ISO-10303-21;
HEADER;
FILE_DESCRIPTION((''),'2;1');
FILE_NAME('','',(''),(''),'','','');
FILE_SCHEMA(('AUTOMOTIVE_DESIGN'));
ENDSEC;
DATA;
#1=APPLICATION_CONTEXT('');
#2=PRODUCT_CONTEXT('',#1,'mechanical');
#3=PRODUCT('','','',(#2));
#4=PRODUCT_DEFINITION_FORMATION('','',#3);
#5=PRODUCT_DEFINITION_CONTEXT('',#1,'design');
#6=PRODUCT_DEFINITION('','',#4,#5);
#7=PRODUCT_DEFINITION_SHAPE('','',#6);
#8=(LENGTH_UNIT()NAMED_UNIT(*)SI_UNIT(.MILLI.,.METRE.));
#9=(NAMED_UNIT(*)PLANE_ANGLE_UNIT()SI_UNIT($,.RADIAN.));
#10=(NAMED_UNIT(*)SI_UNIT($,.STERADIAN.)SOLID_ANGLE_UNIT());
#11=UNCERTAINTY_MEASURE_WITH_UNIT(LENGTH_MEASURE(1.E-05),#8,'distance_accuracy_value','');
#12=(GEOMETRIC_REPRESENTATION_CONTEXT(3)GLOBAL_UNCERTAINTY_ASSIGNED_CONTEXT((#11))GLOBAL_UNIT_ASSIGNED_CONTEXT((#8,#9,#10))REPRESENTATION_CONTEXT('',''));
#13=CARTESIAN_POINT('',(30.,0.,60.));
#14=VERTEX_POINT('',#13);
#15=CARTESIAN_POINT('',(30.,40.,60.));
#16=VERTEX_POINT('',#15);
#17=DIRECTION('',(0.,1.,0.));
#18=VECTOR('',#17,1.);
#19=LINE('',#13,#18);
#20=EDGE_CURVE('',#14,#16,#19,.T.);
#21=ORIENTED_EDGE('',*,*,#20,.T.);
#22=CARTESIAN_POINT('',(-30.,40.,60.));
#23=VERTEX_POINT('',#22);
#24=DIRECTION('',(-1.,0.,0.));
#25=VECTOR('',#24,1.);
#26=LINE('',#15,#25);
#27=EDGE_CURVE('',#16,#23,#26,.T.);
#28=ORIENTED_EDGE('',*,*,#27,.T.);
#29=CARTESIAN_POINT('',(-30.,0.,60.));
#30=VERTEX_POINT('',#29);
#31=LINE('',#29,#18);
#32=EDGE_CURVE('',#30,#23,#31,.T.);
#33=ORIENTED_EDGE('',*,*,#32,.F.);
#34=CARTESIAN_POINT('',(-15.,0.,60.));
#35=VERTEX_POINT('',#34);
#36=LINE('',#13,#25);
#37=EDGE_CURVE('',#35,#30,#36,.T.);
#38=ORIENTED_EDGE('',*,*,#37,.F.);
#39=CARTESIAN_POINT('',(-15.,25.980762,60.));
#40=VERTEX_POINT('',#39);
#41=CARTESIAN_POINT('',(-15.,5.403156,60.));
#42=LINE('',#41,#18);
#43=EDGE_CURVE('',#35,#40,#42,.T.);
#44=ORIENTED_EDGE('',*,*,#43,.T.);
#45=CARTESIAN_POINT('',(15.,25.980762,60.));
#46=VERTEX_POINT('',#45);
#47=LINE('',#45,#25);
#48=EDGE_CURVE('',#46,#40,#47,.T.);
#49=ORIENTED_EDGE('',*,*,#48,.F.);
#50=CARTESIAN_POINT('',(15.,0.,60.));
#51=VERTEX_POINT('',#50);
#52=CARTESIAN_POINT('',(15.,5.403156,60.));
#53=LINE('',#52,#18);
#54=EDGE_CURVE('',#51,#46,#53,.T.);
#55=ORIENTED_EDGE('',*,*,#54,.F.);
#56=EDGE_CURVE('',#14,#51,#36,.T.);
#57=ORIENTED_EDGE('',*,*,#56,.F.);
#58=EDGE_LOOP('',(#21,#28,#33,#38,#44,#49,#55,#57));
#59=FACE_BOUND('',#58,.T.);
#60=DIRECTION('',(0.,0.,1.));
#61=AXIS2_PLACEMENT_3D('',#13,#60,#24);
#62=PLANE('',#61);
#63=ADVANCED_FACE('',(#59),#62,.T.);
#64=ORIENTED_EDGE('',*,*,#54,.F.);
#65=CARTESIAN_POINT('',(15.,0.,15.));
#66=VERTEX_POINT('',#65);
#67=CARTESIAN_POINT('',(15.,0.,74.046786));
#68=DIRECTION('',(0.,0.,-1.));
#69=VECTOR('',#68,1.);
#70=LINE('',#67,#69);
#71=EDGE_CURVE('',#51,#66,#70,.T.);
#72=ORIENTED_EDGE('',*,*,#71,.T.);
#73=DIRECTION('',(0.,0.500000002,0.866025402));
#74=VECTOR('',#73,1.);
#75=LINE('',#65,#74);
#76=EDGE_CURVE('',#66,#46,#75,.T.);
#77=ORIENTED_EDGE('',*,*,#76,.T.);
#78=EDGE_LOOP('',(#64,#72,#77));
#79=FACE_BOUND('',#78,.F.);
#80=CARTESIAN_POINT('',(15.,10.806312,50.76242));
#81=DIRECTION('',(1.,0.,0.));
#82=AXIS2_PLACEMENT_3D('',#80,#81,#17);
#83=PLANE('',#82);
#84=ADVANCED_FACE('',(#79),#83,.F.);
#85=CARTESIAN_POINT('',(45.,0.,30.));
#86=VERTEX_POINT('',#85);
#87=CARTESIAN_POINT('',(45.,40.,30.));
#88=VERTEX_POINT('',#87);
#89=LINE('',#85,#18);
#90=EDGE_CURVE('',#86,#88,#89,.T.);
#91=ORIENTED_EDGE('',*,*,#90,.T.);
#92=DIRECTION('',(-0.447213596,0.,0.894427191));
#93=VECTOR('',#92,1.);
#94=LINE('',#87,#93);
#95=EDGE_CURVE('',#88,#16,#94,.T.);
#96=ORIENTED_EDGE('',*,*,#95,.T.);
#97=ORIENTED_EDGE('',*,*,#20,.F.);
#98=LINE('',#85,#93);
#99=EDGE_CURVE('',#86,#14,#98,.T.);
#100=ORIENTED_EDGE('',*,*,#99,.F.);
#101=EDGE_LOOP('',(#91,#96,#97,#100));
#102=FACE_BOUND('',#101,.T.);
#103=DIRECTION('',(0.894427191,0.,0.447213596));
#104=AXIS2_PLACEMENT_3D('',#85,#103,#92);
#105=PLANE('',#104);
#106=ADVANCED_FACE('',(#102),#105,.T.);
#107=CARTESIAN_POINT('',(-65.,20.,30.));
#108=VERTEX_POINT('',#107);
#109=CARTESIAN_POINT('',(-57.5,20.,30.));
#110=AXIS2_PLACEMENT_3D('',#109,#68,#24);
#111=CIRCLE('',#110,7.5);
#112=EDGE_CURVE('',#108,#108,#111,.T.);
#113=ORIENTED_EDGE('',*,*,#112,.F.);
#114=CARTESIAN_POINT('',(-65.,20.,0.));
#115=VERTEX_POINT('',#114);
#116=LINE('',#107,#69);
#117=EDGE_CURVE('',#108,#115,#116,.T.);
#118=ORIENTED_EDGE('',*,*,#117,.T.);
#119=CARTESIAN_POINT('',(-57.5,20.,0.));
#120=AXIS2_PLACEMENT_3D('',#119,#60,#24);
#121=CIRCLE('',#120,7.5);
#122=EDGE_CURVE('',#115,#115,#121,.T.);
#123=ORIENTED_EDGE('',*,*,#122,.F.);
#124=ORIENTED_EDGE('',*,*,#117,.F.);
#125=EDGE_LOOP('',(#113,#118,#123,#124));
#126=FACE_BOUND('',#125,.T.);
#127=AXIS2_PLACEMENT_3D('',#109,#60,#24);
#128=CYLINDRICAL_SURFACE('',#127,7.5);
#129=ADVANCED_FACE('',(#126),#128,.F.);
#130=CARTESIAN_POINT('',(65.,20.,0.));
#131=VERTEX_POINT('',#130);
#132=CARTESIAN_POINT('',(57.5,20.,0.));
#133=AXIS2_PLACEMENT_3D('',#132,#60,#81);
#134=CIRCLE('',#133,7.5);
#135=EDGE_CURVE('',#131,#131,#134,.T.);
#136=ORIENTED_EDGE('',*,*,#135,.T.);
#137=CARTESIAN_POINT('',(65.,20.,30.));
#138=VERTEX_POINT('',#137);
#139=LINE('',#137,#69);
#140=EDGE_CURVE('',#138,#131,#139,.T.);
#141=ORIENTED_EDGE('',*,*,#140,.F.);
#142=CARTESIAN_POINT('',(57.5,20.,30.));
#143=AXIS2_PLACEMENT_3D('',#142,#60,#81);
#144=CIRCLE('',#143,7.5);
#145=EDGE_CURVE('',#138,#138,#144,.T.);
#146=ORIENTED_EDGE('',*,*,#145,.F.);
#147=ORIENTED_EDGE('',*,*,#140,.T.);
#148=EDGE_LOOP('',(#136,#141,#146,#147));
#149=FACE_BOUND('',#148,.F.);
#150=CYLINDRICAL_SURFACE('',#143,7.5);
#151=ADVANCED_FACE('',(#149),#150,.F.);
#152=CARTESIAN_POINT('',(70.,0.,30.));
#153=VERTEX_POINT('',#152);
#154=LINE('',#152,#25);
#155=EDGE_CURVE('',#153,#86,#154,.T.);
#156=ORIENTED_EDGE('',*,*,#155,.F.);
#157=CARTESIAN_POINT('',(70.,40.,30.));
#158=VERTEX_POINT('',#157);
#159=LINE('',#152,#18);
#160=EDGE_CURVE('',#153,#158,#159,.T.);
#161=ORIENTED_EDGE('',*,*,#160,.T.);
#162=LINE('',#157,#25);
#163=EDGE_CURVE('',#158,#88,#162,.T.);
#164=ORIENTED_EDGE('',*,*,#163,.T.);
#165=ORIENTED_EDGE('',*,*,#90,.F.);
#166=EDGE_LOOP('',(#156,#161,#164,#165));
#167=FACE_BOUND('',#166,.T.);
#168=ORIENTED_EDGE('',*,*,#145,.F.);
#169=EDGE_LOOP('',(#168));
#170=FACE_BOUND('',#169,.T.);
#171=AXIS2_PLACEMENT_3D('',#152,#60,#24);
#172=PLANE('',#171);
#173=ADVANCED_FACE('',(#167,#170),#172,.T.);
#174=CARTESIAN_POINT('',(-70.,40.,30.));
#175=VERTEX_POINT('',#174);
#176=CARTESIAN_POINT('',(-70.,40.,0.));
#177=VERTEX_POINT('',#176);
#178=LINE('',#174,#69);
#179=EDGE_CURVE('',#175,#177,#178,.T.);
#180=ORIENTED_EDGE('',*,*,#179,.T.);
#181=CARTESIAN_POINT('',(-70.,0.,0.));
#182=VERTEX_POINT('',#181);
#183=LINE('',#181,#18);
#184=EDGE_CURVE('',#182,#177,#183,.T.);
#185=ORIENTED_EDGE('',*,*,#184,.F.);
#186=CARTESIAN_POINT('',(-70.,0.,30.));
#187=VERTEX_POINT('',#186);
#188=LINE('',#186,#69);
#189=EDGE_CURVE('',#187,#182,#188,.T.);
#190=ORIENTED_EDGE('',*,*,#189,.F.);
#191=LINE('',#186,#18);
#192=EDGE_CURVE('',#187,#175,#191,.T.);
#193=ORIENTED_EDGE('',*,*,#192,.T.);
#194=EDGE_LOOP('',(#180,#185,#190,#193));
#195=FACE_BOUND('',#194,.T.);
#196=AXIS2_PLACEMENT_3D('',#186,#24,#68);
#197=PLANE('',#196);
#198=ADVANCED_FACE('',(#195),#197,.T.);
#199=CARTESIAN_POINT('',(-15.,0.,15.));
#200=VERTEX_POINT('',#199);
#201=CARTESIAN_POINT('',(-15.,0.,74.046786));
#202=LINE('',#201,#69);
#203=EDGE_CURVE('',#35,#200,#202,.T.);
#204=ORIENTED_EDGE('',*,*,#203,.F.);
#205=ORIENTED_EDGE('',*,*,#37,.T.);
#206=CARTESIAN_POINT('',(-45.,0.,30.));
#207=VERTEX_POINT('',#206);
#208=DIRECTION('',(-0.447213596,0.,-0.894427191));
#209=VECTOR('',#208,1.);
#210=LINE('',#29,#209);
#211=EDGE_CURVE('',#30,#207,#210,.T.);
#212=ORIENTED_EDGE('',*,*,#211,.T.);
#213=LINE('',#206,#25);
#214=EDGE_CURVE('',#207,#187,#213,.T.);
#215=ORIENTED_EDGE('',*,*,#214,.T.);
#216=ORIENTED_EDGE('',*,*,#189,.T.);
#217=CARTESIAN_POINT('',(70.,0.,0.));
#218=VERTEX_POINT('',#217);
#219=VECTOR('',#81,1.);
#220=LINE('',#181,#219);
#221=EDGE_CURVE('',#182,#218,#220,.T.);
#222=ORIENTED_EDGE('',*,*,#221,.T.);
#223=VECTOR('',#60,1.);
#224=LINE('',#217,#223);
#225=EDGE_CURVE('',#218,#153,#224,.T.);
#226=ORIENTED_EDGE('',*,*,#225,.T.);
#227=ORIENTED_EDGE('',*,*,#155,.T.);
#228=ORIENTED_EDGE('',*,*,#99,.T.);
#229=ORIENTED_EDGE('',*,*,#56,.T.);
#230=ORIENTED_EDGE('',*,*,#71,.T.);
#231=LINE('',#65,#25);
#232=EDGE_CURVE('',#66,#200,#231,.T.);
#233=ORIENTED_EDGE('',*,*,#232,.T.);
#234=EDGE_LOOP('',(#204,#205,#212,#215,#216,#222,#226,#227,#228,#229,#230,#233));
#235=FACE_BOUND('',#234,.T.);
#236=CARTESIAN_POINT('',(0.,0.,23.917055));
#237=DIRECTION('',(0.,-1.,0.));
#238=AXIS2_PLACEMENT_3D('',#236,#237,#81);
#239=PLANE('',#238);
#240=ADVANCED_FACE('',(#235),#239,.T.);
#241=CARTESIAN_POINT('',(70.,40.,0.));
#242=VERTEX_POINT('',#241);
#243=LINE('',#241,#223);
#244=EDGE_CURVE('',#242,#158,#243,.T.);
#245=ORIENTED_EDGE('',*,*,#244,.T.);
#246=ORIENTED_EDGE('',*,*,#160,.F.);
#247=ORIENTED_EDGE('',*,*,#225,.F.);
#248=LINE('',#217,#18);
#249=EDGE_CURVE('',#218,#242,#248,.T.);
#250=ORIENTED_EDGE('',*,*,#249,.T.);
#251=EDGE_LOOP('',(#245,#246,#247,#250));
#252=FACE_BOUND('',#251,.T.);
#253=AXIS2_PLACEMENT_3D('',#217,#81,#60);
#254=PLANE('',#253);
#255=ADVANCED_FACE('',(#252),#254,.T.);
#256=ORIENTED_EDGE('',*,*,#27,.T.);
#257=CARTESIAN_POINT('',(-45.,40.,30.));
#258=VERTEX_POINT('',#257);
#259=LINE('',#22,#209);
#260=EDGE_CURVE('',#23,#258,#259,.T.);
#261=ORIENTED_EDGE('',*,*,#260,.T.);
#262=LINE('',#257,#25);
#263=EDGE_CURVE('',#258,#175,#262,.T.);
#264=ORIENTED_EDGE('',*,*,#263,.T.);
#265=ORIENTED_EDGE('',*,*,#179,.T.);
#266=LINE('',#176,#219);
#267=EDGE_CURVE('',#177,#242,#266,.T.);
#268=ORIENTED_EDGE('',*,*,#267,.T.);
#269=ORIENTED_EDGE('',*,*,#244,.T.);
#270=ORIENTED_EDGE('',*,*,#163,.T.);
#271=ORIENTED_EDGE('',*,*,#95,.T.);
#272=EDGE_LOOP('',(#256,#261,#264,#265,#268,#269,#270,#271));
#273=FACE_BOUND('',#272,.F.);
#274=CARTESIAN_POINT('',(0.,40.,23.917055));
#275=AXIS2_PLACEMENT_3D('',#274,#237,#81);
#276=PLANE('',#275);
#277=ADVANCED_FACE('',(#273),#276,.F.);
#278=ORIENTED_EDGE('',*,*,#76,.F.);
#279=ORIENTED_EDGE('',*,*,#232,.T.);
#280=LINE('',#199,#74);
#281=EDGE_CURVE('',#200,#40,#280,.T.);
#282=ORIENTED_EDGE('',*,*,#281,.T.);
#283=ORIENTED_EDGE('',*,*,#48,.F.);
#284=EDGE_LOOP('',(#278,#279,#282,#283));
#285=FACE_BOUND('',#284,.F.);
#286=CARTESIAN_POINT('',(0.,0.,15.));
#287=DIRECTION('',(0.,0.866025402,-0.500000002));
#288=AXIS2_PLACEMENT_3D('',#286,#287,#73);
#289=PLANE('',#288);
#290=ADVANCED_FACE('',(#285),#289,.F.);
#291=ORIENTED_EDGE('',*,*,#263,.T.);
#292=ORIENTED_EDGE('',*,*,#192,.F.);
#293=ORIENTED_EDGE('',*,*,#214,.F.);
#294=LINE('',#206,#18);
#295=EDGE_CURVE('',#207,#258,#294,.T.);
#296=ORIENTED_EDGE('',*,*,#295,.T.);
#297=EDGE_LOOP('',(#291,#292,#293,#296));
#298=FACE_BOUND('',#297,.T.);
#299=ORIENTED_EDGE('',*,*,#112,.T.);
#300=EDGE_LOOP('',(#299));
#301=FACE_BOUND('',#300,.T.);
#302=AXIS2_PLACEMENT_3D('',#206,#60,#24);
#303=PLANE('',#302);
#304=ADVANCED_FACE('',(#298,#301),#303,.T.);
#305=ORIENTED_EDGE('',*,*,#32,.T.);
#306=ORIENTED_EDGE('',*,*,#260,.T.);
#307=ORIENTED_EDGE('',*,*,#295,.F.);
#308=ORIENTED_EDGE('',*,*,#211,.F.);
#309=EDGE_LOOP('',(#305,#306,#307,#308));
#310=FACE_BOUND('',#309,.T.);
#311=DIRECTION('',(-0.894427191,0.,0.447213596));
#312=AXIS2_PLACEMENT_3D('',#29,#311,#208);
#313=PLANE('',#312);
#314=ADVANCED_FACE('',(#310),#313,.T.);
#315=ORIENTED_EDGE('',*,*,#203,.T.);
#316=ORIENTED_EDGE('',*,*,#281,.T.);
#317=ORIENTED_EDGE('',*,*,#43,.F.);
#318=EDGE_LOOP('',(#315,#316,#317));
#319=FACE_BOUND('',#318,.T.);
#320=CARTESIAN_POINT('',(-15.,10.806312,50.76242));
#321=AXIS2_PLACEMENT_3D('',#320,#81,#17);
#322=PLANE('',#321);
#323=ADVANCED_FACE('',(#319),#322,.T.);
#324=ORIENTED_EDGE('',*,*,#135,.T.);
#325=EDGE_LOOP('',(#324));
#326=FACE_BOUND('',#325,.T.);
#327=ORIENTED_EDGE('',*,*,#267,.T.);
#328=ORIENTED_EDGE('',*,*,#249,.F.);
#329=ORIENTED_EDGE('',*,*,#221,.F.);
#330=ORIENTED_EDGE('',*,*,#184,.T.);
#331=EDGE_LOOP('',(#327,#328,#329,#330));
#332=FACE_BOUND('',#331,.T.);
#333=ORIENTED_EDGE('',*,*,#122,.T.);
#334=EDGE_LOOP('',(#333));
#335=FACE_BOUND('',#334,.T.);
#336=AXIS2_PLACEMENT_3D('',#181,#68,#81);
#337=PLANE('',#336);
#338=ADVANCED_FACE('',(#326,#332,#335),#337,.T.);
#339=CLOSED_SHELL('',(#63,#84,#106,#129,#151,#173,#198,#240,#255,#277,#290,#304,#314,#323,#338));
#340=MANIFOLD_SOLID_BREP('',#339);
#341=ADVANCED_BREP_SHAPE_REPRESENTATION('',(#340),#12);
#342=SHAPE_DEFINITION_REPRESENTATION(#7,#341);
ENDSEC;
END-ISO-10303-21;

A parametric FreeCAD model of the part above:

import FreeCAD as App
import Part
import Sketcher

V = App.Vector
Q = App.Units.Quantity


def add_polygon(sketch, points):
    """Adds a closed chain of lines whose ends are joined by coincident constraints."""
    first, n = sketch.GeometryCount, len(points)
    for a, b in zip(points, points[1:] + points[:1]):
        sketch.addGeometry(Part.LineSegment(App.Vector(*a, 0), App.Vector(*b, 0)), False)
    for i in range(n):
        sketch.addConstraint(Sketcher.Constraint("Coincident", first + i, 2, first + (i + 1) % n, 1))

doc = App.newDocument("Part")
body = doc.addObject("PartDesign::Body", "Body")

# Sketch on YZ plane
sketch1 = body.newObject("Sketcher::SketchObject", "Sketch")
sketch1.AttachmentSupport = (doc.getObject("YZ_Plane"), [""])
sketch1.MapMode = "FlatFace"
add_polygon(sketch1, [(0, 15), (34, 74), (0, 74)])  # lines 0-2
sketch1.addConstraint(Sketcher.Constraint("Horizontal", 1))
sketch1.addConstraint(Sketcher.Constraint("Vertical", 2))
sketch1.addConstraint(Sketcher.Constraint("PointOnObject", 1, 2, -2))
sketch1.addConstraint(Sketcher.Constraint("Angle", 0, Q("60 deg")))
sketch1.addConstraint(Sketcher.Constraint("DistanceY", -1, 1, 2, 2, 15.0))
sketch1.addConstraint(Sketcher.Constraint("DistanceX", 1, 2, 1, 1, 34.090678))
pad1 = body.newObject("PartDesign::Pad", "Pad")
pad1.Profile = sketch1
pad1.Length = 30
pad1.Midplane = True
body2 = doc.addObject("PartDesign::Body", "Body001")

# Sketch on XZ plane
sketch2 = body2.newObject("Sketcher::SketchObject", "Sketch001")
sketch2.AttachmentSupport = (doc.getObject("XZ_Plane001"), [""])
sketch2.MapMode = "FlatFace"
add_polygon(sketch2, [(-70, 0), (70, 0), (70, 30), (45, 30), (30, 60), (-30, 60), (-45, 30), (-70, 30)])  # lines 0-7
sketch2.addConstraint(Sketcher.Constraint("Horizontal", 0))
sketch2.addConstraint(Sketcher.Constraint("Vertical", 1))
sketch2.addConstraint(Sketcher.Constraint("Horizontal", 2))
sketch2.addConstraint(Sketcher.Constraint("Horizontal", 4))
sketch2.addConstraint(Sketcher.Constraint("Horizontal", 6))
sketch2.addConstraint(Sketcher.Constraint("Vertical", 7))
sketch2.addConstraint(Sketcher.Constraint("Symmetric", 0, 2, 7, 2, -1, 1))
sketch2.addConstraint(Sketcher.Constraint("Symmetric", 2, 2, 5, 2, -2))
sketch2.addConstraint(Sketcher.Constraint("Equal", 3, 5))
sketch2.addConstraint(Sketcher.Constraint("DistanceX", 0, 1, 0, 2, 140.0))
sketch2.addConstraint(Sketcher.Constraint("DistanceX", 2, 2, 2, 1, 25.0))
sketch2.addConstraint(Sketcher.Constraint("DistanceX", 4, 2, 4, 1, 60.0))
sketch2.addConstraint(Sketcher.Constraint("DistanceY", 1, 1, 1, 2, 30.0))
sketch2.addConstraint(Sketcher.Constraint("DistanceY", -1, 1, 3, 2, 60.0))
pad2 = body2.newObject("PartDesign::Pad", "Pad001")
pad2.Profile = sketch2
pad2.Length = 40
pad2.Reversed = True
doc.recompute()

boolean = body2.newObject("PartDesign::Boolean", "Boolean")
boolean.Type = "Cut"
boolean.addObjects([body])

# Sketch on XY plane
sketch3 = body2.newObject("Sketcher::SketchObject", "Sketch002")
sketch3.AttachmentSupport = (doc.getObject("XY_Plane001"), [""])
sketch3.MapMode = "FlatFace"
sketch3.AttachmentOffset = App.Placement(V(0, 0, 30), App.Rotation())
sketch3.addGeometry(Part.Circle(V(58, 20, 0), V(0, 0, 1), 8), False)
sketch3.addConstraint(Sketcher.Constraint("Diameter", 0, 15.0))
sketch3.addConstraint(Sketcher.Constraint("DistanceY", -1, 1, 0, 3, 20.0))
sketch3.addConstraint(Sketcher.Constraint("DistanceX", -1, 1, 0, 3, 57.5))
pocket1 = body2.newObject("PartDesign::Pocket", "Pocket")
pocket1.Profile = sketch3
pocket1.Type = "ThroughAll"
doc.recompute()

mirrored = body2.newObject("PartDesign::Mirrored", "Mirrored")
mirrored.Originals = [pocket1]
mirrored.MirrorPlane = (doc.getObject("YZ_Plane001"), [""])
body2.Tip = mirrored

doc.recompute()
